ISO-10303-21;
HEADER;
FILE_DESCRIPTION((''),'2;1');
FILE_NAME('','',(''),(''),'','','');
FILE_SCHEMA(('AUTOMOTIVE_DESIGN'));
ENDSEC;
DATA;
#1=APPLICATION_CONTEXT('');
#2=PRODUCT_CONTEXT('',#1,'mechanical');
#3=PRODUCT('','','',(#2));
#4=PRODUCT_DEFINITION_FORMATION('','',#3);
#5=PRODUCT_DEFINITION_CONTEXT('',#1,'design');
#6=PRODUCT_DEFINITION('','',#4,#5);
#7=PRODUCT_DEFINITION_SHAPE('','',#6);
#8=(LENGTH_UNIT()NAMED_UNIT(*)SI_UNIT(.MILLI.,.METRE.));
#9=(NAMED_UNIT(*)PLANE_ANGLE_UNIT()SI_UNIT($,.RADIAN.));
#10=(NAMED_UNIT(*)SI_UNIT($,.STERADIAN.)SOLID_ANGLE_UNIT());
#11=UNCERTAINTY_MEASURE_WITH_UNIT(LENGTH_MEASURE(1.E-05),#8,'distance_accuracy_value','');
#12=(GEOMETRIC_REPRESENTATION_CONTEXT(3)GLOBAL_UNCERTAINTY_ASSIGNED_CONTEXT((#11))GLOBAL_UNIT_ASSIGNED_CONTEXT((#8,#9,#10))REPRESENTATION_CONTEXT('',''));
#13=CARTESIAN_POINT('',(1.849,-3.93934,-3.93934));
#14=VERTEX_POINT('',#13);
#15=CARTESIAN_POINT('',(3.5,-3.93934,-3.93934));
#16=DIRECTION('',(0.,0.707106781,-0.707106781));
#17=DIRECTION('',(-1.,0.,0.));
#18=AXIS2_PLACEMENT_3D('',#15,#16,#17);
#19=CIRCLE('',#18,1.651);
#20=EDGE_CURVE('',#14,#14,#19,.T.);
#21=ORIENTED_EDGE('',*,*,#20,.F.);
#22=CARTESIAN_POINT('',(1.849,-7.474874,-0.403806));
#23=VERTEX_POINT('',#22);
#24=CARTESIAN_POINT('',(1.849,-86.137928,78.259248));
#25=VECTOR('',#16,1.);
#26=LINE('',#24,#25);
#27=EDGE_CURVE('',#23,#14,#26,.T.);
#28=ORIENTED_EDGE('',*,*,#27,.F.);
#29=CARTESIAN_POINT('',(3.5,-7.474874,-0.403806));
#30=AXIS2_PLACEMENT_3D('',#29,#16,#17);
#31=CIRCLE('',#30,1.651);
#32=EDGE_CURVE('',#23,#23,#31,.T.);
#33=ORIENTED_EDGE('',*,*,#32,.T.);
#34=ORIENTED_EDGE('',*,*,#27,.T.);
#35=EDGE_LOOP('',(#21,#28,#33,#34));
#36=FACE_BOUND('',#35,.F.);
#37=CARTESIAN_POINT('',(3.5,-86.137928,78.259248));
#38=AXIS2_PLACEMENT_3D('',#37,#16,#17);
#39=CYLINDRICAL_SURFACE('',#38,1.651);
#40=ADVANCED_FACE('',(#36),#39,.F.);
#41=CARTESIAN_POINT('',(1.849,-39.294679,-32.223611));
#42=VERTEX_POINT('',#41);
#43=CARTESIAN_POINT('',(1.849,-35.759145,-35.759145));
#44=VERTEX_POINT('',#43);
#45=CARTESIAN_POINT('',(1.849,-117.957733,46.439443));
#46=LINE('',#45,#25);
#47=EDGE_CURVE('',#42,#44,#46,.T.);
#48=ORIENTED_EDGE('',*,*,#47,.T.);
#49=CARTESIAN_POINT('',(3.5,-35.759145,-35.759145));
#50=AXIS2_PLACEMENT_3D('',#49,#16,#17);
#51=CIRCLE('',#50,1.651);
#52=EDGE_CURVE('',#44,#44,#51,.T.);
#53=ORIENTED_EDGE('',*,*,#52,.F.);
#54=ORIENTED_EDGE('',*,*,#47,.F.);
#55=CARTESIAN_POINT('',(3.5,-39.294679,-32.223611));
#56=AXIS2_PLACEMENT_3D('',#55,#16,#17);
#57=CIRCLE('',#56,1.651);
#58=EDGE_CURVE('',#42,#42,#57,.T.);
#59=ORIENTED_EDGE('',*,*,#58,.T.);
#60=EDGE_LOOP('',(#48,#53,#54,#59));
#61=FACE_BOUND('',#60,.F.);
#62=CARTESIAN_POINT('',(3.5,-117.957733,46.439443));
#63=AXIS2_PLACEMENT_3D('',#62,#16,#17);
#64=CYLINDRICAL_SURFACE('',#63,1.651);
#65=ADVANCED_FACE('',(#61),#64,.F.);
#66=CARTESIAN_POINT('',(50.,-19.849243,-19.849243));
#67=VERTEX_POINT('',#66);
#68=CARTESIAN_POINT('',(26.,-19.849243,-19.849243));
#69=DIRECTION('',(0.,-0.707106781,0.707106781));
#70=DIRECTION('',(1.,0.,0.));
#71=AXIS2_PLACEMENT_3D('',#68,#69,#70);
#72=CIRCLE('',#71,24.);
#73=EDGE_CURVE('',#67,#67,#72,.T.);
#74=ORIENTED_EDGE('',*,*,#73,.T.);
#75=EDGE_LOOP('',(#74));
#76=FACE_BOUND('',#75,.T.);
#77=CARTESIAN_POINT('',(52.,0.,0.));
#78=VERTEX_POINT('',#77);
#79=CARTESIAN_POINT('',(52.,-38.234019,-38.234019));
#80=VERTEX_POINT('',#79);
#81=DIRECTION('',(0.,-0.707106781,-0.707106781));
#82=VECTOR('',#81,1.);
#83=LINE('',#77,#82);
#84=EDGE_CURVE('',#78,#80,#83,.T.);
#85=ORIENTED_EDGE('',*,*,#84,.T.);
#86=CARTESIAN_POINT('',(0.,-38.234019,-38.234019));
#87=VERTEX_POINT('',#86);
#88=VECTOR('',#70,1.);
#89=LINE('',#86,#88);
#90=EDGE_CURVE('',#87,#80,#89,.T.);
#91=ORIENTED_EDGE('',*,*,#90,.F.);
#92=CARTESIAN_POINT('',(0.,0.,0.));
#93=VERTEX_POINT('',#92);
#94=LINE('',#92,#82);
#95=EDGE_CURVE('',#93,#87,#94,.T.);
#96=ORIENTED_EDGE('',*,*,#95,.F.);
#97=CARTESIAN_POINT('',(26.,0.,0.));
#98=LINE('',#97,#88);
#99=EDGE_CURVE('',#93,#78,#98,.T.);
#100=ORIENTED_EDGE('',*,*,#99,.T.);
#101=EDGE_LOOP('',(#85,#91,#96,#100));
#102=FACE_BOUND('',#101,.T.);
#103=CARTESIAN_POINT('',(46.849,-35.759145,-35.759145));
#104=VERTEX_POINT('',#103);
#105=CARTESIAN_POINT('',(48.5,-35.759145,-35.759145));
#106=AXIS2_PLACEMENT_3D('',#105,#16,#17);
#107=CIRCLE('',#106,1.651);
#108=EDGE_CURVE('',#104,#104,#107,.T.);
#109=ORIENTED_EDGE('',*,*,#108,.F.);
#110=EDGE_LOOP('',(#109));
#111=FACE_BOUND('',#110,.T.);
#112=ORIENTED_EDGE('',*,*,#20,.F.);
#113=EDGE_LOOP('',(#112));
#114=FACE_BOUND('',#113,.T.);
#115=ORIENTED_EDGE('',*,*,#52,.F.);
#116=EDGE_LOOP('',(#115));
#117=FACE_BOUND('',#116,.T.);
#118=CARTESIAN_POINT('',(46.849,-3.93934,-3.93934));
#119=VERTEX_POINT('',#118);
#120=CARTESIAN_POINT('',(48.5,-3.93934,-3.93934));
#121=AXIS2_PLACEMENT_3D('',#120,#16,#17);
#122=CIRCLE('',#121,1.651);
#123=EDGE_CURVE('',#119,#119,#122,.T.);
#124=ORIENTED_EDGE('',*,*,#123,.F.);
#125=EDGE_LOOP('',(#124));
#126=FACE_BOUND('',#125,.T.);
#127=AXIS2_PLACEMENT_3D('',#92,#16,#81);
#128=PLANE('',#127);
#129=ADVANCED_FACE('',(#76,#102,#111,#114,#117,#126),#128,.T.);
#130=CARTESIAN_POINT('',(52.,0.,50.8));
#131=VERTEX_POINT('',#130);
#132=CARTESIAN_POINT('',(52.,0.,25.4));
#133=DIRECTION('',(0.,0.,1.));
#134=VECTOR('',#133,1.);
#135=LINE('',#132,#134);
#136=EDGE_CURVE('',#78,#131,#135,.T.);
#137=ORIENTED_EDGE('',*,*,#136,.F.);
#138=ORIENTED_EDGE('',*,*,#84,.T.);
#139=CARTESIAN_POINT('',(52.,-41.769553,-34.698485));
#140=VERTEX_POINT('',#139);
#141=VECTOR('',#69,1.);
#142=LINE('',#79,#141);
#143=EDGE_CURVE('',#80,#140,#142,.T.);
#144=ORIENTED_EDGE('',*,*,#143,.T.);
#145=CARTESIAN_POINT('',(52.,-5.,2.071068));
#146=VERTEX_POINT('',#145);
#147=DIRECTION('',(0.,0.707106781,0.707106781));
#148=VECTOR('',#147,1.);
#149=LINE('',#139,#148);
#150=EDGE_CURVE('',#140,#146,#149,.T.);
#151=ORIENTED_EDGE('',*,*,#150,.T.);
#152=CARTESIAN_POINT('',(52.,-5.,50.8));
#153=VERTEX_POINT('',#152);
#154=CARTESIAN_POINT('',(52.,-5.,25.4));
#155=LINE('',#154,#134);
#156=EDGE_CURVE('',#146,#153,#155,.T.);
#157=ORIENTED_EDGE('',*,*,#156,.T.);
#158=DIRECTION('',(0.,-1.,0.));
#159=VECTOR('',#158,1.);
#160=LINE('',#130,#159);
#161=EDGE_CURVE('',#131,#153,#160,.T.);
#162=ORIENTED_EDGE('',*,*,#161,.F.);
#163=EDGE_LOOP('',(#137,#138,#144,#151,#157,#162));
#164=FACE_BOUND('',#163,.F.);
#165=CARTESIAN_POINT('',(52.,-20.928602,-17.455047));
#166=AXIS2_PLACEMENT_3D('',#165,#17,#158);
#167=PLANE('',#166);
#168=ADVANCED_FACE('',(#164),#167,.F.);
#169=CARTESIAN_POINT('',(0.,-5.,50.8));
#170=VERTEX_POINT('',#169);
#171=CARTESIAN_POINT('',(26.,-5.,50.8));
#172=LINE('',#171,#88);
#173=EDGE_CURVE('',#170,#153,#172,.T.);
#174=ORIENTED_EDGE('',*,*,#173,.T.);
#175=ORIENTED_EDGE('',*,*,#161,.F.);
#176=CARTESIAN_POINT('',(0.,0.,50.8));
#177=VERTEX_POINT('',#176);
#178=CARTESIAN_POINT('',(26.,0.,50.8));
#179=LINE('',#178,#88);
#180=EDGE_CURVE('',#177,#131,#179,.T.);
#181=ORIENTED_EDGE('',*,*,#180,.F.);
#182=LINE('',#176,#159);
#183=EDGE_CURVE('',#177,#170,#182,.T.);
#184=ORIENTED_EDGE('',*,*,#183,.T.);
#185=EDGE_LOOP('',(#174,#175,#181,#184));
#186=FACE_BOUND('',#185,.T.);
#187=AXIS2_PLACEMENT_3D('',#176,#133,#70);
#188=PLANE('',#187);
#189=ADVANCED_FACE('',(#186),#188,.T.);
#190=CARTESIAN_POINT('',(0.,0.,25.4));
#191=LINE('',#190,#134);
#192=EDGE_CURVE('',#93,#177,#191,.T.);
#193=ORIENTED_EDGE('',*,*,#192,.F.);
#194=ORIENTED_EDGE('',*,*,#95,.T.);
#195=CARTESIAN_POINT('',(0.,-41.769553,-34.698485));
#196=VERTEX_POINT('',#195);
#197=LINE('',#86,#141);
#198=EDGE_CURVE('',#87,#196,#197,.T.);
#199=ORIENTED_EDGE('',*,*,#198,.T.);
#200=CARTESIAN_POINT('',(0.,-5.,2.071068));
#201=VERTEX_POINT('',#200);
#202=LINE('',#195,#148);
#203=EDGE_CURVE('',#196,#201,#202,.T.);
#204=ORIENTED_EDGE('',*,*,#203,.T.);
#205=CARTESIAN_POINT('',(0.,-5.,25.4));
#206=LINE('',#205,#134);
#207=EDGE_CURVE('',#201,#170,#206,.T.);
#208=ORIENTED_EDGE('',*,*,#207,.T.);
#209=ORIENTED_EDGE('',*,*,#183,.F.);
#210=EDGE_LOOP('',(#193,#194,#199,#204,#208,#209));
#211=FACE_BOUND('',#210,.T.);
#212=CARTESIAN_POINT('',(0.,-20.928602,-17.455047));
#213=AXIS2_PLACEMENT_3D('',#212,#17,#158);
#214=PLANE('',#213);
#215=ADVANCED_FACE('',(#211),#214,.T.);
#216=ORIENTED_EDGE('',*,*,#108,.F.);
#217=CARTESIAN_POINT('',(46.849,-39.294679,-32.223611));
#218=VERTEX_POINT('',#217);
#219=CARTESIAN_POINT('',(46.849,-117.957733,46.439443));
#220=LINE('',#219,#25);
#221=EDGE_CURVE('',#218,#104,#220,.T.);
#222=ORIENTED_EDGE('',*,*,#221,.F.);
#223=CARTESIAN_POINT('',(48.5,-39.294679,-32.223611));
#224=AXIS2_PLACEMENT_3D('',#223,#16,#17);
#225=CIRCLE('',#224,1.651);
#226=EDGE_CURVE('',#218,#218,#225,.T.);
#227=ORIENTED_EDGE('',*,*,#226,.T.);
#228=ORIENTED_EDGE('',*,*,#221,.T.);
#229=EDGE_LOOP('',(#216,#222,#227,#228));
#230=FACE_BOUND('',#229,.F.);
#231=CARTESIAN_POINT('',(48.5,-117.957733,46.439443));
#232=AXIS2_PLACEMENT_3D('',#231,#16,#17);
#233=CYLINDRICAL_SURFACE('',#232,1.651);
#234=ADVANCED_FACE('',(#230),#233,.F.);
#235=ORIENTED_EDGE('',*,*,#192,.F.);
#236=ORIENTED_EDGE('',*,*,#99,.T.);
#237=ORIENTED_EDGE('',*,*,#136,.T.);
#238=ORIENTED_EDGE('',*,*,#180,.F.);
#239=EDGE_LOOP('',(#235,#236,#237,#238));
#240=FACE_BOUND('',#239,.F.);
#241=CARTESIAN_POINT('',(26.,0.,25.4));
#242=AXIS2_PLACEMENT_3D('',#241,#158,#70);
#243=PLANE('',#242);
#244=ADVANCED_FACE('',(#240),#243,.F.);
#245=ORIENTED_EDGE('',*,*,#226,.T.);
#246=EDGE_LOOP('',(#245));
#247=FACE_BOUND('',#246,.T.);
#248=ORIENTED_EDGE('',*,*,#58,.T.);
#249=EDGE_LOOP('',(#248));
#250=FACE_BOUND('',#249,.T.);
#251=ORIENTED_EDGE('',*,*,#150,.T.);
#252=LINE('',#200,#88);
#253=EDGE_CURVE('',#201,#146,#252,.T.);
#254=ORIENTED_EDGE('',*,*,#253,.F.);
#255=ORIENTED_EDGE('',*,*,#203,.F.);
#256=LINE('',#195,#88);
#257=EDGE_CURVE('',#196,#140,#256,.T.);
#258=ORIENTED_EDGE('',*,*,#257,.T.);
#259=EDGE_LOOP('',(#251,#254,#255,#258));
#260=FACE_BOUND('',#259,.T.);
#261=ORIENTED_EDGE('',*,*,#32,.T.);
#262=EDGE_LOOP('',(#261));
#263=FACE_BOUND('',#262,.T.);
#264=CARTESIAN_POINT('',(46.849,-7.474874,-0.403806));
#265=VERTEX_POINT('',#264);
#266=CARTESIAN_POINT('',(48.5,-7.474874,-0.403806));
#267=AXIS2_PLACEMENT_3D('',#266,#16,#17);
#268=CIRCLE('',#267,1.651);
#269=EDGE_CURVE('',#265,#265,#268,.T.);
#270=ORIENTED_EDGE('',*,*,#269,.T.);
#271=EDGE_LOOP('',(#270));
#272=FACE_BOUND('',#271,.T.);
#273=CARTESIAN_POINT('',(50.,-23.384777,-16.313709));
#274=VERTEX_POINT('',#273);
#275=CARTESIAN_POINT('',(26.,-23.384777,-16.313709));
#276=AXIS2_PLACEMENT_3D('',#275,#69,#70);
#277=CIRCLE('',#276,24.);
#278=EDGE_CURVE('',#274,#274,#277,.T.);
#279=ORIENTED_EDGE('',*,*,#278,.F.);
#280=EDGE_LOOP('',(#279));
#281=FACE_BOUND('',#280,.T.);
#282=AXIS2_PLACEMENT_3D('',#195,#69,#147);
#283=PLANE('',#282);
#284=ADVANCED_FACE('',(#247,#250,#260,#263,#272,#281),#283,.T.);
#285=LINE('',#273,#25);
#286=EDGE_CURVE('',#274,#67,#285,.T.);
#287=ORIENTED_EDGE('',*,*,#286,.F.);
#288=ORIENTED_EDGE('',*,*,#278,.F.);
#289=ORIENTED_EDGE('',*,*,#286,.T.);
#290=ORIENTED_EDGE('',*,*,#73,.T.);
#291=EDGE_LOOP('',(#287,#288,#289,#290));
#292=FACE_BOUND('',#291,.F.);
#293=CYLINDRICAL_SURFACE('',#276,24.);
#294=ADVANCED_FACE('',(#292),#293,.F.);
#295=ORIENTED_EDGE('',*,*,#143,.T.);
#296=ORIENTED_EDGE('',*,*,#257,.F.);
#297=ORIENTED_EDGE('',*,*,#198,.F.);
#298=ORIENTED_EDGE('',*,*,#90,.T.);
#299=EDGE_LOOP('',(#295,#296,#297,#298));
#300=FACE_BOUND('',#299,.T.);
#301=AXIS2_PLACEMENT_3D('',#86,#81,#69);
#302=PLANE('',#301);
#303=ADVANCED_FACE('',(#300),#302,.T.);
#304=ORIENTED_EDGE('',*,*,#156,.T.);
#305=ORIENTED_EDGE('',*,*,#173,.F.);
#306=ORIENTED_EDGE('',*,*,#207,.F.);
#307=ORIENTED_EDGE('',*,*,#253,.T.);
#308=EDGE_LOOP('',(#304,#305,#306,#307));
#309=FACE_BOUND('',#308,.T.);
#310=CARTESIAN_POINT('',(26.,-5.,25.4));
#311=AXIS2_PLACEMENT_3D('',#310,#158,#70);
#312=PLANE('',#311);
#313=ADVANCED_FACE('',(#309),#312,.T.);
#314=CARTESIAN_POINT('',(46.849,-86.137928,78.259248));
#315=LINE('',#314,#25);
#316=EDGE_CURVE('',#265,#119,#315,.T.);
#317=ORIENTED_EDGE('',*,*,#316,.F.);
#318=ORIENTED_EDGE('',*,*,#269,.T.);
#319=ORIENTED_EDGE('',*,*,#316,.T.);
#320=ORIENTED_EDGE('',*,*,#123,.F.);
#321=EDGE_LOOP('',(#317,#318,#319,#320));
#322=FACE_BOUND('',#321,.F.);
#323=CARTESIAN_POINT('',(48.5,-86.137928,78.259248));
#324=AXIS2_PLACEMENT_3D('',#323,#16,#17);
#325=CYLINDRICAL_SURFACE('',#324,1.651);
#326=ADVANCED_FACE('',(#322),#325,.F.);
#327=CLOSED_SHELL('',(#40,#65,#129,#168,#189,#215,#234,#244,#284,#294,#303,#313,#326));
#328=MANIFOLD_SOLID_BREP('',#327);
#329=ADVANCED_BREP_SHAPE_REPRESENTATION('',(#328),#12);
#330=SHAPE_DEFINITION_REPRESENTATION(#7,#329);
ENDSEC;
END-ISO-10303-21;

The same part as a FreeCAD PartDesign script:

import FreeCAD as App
import Part
import Sketcher
Q = App.Units.Quantity


def add_polygon(sketch, points):
    """Adds a closed chain of lines whose ends are joined by coincident constraints."""
    first, n = sketch.GeometryCount, len(points)
    for a, b in zip(points, points[1:] + points[:1]):
        sketch.addGeometry(Part.LineSegment(App.Vector(*a, 0), App.Vector(*b, 0)), False)
    for i in range(n):
        sketch.addConstraint(Sketcher.Constraint("Coincident", first + i, 2, first + (i + 1) % n, 1))

doc = App.newDocument("Part")
params = doc.addObject("Spreadsheet::Sheet", "Params")
for row, (alias, value) in enumerate([
    ("sketch1_width", "52 mm"),
    ("sketch1_height", "50.8 mm"),
    ("pad1_length", "5 mm"),
    ("sketch2_width", "5 mm"),
    ("sketch2_length", "5 mm"),
    ("sketch2_length2", "52.000001 mm"),
    ("pad2_length", "52 mm"),
    ("hole_diameter", "3.302 mm"),
    ("sketch4_diameter", "48 mm"),
], start=1):
    params.set(f"A{row}", alias)
    params.set(f"B{row}", "=" + value)
    params.setAlias(f"B{row}", alias)

body = doc.addObject("PartDesign::Body", "Body")

# Sketch on XZ plane
sketch1 = body.newObject("Sketcher::SketchObject", "Sketch")
sketch1.AttachmentSupport = (doc.getObject("XZ_Plane"), [""])
sketch1.MapMode = "FlatFace"
add_polygon(sketch1, [(0, 51), (0, 0), (52, 0), (52, 51)])  # lines 0-3
sketch1.addConstraint(Sketcher.Constraint("Vertical", 0))
sketch1.addConstraint(Sketcher.Constraint("Horizontal", 1))
sketch1.addConstraint(Sketcher.Constraint("Vertical", 2))
sketch1.addConstraint(Sketcher.Constraint("Horizontal", 3))
sketch1.addConstraint(Sketcher.Constraint("Coincident", 0, 2, -1, 1))
sketch1.addConstraint(Sketcher.Constraint("DistanceX", 1, 1, 1, 2, 52.0))
sketch1.addConstraint(Sketcher.Constraint("DistanceY", 0, 2, 0, 1, 50.8))
sketch1.setExpression("Constraints[9]", "Params.sketch1_width")
sketch1.setExpression("Constraints[10]", "Params.sketch1_height")
pad1 = body.newObject("PartDesign::Pad", "Pad")
pad1.Profile = sketch1
pad1.setExpression("Length", "Params.pad1_length")

# Sketch on YZ plane
sketch2 = body.newObject("Sketcher::SketchObject", "Sketch001")
sketch2.AttachmentSupport = (doc.getObject("YZ_Plane"), [""])
sketch2.MapMode = "FlatFace"
add_polygon(sketch2, [(-5, 0), (0, 0), (-38.2, -38.2), (-41.8, -34.7), (-5, 2.1)])  # lines 0-4
sketch2.addConstraint(Sketcher.Constraint("Horizontal", 0))
sketch2.addConstraint(Sketcher.Constraint("Vertical", 4))
sketch2.addConstraint(Sketcher.Constraint("Coincident", 0, 2, -1, 1))
sketch2.addConstraint(Sketcher.Constraint("Perpendicular", 1, 2))
sketch2.addConstraint(Sketcher.Constraint("Perpendicular", 2, 3))
sketch2.addConstraint(Sketcher.Constraint("DistanceX", 0, 1, 0, 2, 5.0))
sketch2.addConstraint(Sketcher.Constraint("Angle", 1, Q("-135 deg")))
sketch2.addConstraint(Sketcher.Constraint("Distance", 2, 5.0))
sketch2.addConstraint(Sketcher.Constraint("Distance", 3, 52.000001))
sketch2.setExpression("Constraints[10]", "Params.sketch2_width")
sketch2.setExpression("Constraints[12]", "Params.sketch2_length")
sketch2.setExpression("Constraints[13]", "Params.sketch2_length2")
pad2 = body.newObject("PartDesign::Pad", "Pad001")
pad2.Profile = sketch2
pad2.setExpression("Length", "Params.pad2_length")

# Sketch on an angled plane
sketch3 = body.newObject("Sketcher::SketchObject", "Sketch002")
sketch3.Placement = App.Placement(App.Vector(0, -3.535534, 3.535534), App.Rotation(App.Vector(1, 0, 0), App.Vector(0, 0.707106781, 0.707106781), App.Vector(0, -0.707106781, 0.707106781), "ZXY"))
sketch3.addGeometry(Part.Circle(App.Vector(48.5, -5.6, 0), App.Vector(0, 0, 1), 1.7), False)
sketch3.addGeometry(Part.Circle(App.Vector(48.5, -50.6, 0), App.Vector(0, 0, 1), 1.7), False)
sketch3.addGeometry(Part.Circle(App.Vector(3.5, -50.6, 0), App.Vector(0, 0, 1), 1.7), False)
sketch3.addGeometry(Part.Circle(App.Vector(3.5, -5.6, 0), App.Vector(0, 0, 1), 1.7), False)
sketch3.addConstraint(Sketcher.Constraint("Equal", 0, 1))
sketch3.addConstraint(Sketcher.Constraint("Equal", 1, 2))
sketch3.addConstraint(Sketcher.Constraint("Equal", 2, 3))
sketch3.addConstraint(Sketcher.Constraint("Horizontal", 1, 3, 2, 3))
sketch3.addConstraint(Sketcher.Constraint("Horizontal", 0, 3, 3, 3))
sketch3.addConstraint(Sketcher.Constraint("Vertical", 0, 3, 1, 3))
sketch3.addConstraint(Sketcher.Constraint("Vertical", 2, 3, 3, 3))
sketch3.addConstraint(Sketcher.Constraint("Diameter", 0, 3.302))
sketch3.addConstraint(Sketcher.Constraint("DistanceY", 1, 3, 0, 3, 45.0))
sketch3.addConstraint(Sketcher.Constraint("DistanceX", 2, 3, 1, 3, 45.0))
sketch3.addConstraint(Sketcher.Constraint("DistanceX", -1, 1, 0, 3, 48.5))
sketch3.addConstraint(Sketcher.Constraint("DistanceY", 0, 3, -1, 1, 5.571068))
doc.recompute()
hole = body.newObject("PartDesign::Hole", "Hole")
hole.Profile = sketch3
hole.ThreadType = "None"
hole.setExpression("Diameter", "Params.hole_diameter")
hole.DepthType = "ThroughAll"

# Sketch on an angled plane
sketch4 = body.newObject("Sketcher::SketchObject", "Sketch003")
sketch4.Placement = App.Placement(App.Vector(0, -3.535534, 3.535534), App.Rotation(App.Vector(1, 0, 0), App.Vector(0, 0.707106781, 0.707106781), App.Vector(0, -0.707106781, 0.707106781), "ZXY"))
sketch4.addGeometry(Part.Circle(App.Vector(26, -28, 0), App.Vector(0, 0, 1), 24), False)
sketch4.addConstraint(Sketcher.Constraint("Diameter", 0, 48.0))
sketch4.addConstraint(Sketcher.Constraint("DistanceX", -1, 1, 0, 3, 26.0))
sketch4.addConstraint(Sketcher.Constraint("DistanceY", 0, 3, -1, 1, 28.071068))
sketch4.setExpression("Constraints[0]", "Params.sketch4_diameter")
pocket1 = body.newObject("PartDesign::Pocket", "Pocket")
pocket1.Profile = sketch4
pocket1.Type = "ThroughAll"

doc.recompute()
